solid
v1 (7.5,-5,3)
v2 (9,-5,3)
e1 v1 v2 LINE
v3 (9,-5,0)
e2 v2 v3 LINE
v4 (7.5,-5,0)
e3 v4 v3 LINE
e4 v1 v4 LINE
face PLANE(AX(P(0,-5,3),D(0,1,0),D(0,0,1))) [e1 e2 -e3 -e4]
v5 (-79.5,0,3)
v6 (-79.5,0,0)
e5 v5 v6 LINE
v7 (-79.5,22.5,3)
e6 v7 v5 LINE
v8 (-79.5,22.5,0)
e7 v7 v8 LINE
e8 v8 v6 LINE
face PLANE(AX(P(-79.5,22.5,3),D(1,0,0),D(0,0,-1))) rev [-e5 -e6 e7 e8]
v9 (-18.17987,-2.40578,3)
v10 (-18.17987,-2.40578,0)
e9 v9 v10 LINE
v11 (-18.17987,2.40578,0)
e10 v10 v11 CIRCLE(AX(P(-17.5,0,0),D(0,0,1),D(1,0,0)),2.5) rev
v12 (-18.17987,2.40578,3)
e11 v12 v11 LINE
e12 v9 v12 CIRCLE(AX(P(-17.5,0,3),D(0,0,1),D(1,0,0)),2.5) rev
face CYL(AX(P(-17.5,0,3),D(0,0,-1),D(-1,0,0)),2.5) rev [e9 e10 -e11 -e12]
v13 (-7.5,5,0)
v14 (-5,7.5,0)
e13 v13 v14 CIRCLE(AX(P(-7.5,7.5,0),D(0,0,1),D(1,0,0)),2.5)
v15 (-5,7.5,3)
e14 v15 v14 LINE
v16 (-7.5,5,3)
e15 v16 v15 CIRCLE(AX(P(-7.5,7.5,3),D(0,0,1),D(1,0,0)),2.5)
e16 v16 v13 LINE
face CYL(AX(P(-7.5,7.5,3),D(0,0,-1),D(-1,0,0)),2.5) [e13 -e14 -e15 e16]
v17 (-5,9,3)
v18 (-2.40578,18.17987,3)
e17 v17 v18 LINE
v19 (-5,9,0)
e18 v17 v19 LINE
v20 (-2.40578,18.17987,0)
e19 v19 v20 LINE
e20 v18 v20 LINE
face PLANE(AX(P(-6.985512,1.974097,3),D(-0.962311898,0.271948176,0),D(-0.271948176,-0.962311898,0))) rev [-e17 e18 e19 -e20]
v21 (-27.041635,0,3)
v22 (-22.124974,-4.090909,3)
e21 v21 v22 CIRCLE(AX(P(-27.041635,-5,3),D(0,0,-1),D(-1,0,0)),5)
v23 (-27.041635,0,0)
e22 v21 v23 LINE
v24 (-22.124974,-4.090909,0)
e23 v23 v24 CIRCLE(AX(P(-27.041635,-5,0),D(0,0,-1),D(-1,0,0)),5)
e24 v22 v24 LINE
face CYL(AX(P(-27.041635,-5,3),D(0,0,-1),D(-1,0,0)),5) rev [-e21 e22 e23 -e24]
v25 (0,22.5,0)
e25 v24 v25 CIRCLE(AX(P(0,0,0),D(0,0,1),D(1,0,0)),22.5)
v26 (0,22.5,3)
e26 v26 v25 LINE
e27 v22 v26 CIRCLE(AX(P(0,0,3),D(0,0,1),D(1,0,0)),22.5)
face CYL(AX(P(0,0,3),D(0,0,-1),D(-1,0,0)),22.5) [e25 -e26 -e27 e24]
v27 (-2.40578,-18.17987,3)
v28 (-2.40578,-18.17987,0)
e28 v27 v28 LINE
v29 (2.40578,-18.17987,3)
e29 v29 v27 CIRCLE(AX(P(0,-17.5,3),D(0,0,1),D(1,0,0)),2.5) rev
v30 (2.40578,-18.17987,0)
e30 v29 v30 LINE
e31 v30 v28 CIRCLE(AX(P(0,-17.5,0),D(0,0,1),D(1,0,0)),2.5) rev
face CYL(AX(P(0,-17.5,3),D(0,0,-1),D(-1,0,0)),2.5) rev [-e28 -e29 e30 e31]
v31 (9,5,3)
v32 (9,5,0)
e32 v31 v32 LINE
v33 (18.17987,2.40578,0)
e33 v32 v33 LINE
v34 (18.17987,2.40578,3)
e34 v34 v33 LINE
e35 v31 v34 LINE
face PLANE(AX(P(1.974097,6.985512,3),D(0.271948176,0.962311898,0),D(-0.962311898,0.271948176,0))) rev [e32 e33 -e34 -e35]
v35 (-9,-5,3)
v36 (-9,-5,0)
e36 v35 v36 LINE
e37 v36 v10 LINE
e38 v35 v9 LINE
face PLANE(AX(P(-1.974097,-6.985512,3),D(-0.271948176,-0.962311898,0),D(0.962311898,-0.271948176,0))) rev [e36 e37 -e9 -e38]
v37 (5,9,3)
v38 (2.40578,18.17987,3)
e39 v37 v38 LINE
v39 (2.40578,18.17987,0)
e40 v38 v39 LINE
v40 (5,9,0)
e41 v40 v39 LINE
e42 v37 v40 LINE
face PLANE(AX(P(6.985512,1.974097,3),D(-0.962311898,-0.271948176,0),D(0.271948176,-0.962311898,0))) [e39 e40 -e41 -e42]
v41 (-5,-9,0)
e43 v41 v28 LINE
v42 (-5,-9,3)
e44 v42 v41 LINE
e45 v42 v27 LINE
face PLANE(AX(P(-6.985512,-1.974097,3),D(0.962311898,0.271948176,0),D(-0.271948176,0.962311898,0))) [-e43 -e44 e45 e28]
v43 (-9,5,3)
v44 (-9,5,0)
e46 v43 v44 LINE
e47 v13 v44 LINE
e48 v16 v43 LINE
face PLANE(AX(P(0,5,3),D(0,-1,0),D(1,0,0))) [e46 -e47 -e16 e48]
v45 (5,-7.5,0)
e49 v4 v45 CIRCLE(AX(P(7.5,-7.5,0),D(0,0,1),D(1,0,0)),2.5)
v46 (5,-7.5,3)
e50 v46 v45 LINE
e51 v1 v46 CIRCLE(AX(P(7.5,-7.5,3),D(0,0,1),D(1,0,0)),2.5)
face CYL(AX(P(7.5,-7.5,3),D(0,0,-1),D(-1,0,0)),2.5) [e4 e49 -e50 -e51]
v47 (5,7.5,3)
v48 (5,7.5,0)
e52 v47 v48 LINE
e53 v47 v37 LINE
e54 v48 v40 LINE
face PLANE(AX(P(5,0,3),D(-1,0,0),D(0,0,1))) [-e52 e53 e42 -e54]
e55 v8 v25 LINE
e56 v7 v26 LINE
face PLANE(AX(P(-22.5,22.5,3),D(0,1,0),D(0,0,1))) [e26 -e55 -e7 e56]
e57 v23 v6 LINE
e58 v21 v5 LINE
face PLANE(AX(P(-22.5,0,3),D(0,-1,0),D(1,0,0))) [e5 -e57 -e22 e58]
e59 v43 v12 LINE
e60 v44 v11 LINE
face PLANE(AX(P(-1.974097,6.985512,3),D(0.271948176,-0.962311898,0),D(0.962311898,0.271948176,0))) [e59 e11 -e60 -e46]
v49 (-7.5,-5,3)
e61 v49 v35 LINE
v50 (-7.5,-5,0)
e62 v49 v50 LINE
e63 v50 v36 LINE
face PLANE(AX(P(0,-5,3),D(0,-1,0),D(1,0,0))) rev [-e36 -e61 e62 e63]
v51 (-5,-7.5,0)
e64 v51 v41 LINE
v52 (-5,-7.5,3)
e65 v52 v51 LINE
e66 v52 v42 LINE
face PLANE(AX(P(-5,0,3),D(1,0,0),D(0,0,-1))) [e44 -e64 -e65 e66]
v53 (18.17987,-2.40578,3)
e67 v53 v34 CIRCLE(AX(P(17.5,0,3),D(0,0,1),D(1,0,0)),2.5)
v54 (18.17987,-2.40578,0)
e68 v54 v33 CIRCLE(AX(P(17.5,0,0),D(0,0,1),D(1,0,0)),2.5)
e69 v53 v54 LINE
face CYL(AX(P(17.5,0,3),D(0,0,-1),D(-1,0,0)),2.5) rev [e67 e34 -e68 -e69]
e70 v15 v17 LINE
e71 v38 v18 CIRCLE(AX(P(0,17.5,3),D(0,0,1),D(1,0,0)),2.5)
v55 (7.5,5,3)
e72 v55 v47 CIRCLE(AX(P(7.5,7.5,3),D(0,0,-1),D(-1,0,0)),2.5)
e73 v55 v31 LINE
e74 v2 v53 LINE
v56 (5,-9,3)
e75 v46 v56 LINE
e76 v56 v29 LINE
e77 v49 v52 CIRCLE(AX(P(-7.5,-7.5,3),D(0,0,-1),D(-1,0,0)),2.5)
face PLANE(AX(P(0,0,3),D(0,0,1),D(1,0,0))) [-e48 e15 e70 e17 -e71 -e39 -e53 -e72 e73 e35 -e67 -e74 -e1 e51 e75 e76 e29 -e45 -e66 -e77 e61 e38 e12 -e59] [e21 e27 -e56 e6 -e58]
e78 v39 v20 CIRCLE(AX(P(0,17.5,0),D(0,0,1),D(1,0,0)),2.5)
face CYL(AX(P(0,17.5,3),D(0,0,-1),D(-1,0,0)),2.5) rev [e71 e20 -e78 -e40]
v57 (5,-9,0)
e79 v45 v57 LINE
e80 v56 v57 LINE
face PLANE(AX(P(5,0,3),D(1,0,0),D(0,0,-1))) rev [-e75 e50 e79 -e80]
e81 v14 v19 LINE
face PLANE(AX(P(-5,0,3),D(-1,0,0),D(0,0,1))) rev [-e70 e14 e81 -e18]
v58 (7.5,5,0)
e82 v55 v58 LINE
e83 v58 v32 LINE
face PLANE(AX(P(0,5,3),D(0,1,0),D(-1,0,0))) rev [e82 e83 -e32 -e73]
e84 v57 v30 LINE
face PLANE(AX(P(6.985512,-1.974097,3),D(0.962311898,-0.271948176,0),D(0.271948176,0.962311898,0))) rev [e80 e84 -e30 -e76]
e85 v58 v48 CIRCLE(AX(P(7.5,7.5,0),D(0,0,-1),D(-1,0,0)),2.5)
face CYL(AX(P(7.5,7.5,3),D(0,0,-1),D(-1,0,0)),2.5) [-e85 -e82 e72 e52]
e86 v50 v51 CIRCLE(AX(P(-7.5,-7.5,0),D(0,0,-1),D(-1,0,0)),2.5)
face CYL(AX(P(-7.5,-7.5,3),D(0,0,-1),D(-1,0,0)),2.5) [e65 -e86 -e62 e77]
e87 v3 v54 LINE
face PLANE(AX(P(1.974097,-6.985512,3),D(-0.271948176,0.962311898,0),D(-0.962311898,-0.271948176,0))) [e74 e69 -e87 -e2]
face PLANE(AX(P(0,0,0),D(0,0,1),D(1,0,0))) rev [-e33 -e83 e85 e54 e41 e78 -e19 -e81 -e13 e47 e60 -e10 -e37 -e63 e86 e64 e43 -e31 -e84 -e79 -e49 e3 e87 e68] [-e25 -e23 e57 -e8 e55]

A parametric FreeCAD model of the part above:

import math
import FreeCAD as App
import Part
import Sketcher

V = App.Vector
Q = App.Units.Quantity

doc = App.newDocument("Part")
body = doc.addObject("PartDesign::Body", "Body")

# Sketch on XY plane
sketch1 = body.newObject("Sketcher::SketchObject", "Sketch")
sketch1.AttachmentSupport = (doc.getObject("XY_Plane"), [""])
sketch1.MapMode = "FlatFace"
sketch1.addGeometry(Part.ArcOfCircle(Part.Circle(V(0, 0, 0), V(0, 0, 1), 22.5), math.radians(0), math.radians(90)), False)
sketch1.addGeometry(Part.LineSegment(V(0, 22.5, 0), V(-79.5, 22.5, 0)), False)
sketch1.addGeometry(Part.LineSegment(V(-79.5, 22.5, 0), V(-79.5, 0, 0)), False)
sketch1.addGeometry(Part.LineSegment(V(-79.5, 0, 0), V(-27, 0, 0)), False)
sketch1.addGeometry(Part.ArcOfCircle(Part.Circle(V(-27, -5, 0), V(0, 0, 1), 5), math.radians(10), math.radians(90)), False)
sketch1.addGeometry(Part.ArcOfCircle(Part.Circle(V(0, 0, 0), V(0, 0, 1), 22.5), math.radians(-170), math.radians(0)), False)
sketch1.addGeometry(Part.LineSegment(V(-9, 5, 0), V(-7.5, 5, 0)), False)
sketch1.addGeometry(Part.ArcOfCircle(Part.Circle(V(-7.5, 7.5, 0), V(0, 0, 1), 2.5), math.radians(-90), math.radians(0)), False)
sketch1.addGeometry(Part.LineSegment(V(-5, 7.5, 0), V(-5, 9, 0)), False)
sketch1.addGeometry(Part.LineSegment(V(-5, 9, 0), V(-2.4, 18.2, 0)), False)
sketch1.addGeometry(Part.ArcOfCircle(Part.Circle(V(0, 17.5, 0), V(0, 0, 1), 2.5), math.radians(16), math.radians(164)), False)
sketch1.addGeometry(Part.LineSegment(V(2.4, 18.2, 0), V(5, 9, 0)), False)
sketch1.addGeometry(Part.LineSegment(V(5, 9, 0), V(5, 7.5, 0)), False)
sketch1.addGeometry(Part.ArcOfCircle(Part.Circle(V(7.5, 7.5, 0), V(0, 0, 1), 2.5), math.radians(180), math.radians(270)), False)
sketch1.addGeometry(Part.LineSegment(V(7.5, 5, 0), V(9, 5, 0)), False)
sketch1.addGeometry(Part.LineSegment(V(9, 5, 0), V(18.2, 2.4, 0)), False)
sketch1.addGeometry(Part.ArcOfCircle(Part.Circle(V(17.5, 0, 0), V(0, 0, 1), 2.5), math.radians(0), math.radians(74)), False)
sketch1.addGeometry(Part.ArcOfCircle(Part.Circle(V(17.5, 0, 0), V(0, 0, 1), 2.5), math.radians(-74), math.radians(0)), False)
sketch1.addGeometry(Part.LineSegment(V(18.2, -2.4, 0), V(9, -5, 0)), False)
sketch1.addGeometry(Part.LineSegment(V(9, -5, 0), V(7.5, -5, 0)), False)
sketch1.addGeometry(Part.ArcOfCircle(Part.Circle(V(7.5, -7.5, 0), V(0, 0, 1), 2.5), math.radians(90), math.radians(180)), False)
sketch1.addGeometry(Part.LineSegment(V(5, -7.5, 0), V(5, -9, 0)), False)
sketch1.addGeometry(Part.LineSegment(V(5, -9, 0), V(2.4, -18.2, 0)), False)
sketch1.addGeometry(Part.ArcOfCircle(Part.Circle(V(0, -17.5, 0), V(0, 0, 1), 2.5), math.radians(-164), math.radians(-16)), False)
sketch1.addGeometry(Part.LineSegment(V(-2.4, -18.2, 0), V(-5, -9, 0)), False)
sketch1.addGeometry(Part.LineSegment(V(-5, -9, 0), V(-5, -7.5, 0)), False)
sketch1.addGeometry(Part.ArcOfCircle(Part.Circle(V(-7.5, -7.5, 0), V(0, 0, 1), 2.5), math.radians(0), math.radians(90)), False)
sketch1.addGeometry(Part.LineSegment(V(-7.5, -5, 0), V(-9, -5, 0)), False)
sketch1.addGeometry(Part.LineSegment(V(-9, -5, 0), V(-18.2, -2.4, 0)), False)
sketch1.addGeometry(Part.ArcOfCircle(Part.Circle(V(-17.5, 0, 0), V(0, 0, 1), 2.5), math.radians(106), math.radians(254)), False)
sketch1.addGeometry(Part.LineSegment(V(-18.2, 2.4, 0), V(-9, 5, 0)), False)
sketch1.addConstraint(Sketcher.Constraint("Tangent", 0, 2, 1, 1))
sketch1.addConstraint(Sketcher.Constraint("Coincident", 1, 2, 2, 1))
sketch1.addConstraint(Sketcher.Constraint("Coincident", 2, 2, 3, 1))
sketch1.addConstraint(Sketcher.Constraint("Tangent", 3, 2, 4, 2))
sketch1.addConstraint(Sketcher.Constraint("Tangent", 4, 1, 5, 1))
sketch1.addConstraint(Sketcher.Constraint("Tangent", 5, 2, 0, 1))
sketch1.addConstraint(Sketcher.Constraint("Tangent", 6, 2, 7, 1))
sketch1.addConstraint(Sketcher.Constraint("Tangent", 7, 2, 8, 1))
sketch1.addConstraint(Sketcher.Constraint("Coincident", 8, 2, 9, 1))
sketch1.addConstraint(Sketcher.Constraint("Tangent", 9, 2, 10, 2))
sketch1.addConstraint(Sketcher.Constraint("Tangent", 10, 1, 11, 1))
sketch1.addConstraint(Sketcher.Constraint("Coincident", 11, 2, 12, 1))
sketch1.addConstraint(Sketcher.Constraint("Tangent", 12, 2, 13, 1))
sketch1.addConstraint(Sketcher.Constraint("Tangent", 13, 2, 14, 1))
sketch1.addConstraint(Sketcher.Constraint("Coincident", 14, 2, 15, 1))
sketch1.addConstraint(Sketcher.Constraint("Tangent", 15, 2, 16, 2))
sketch1.addConstraint(Sketcher.Constraint("Tangent", 16, 1, 17, 2))
sketch1.addConstraint(Sketcher.Constraint("Tangent", 17, 1, 18, 1))
sketch1.addConstraint(Sketcher.Constraint("Coincident", 18, 2, 19, 1))
sketch1.addConstraint(Sketcher.Constraint("Tangent", 19, 2, 20, 1))
sketch1.addConstraint(Sketcher.Constraint("Tangent", 20, 2, 21, 1))
sketch1.addConstraint(Sketcher.Constraint("Coincident", 21, 2, 22, 1))
sketch1.addConstraint(Sketcher.Constraint("Tangent", 22, 2, 23, 2))
sketch1.addConstraint(Sketcher.Constraint("Tangent", 23, 1, 24, 1))
sketch1.addConstraint(Sketcher.Constraint("Coincident", 24, 2, 25, 1))
sketch1.addConstraint(Sketcher.Constraint("Tangent", 25, 2, 26, 1))
sketch1.addConstraint(Sketcher.Constraint("Tangent", 26, 2, 27, 1))
sketch1.addConstraint(Sketcher.Constraint("Coincident", 27, 2, 28, 1))
sketch1.addConstraint(Sketcher.Constraint("Tangent", 28, 2, 29, 2))
sketch1.addConstraint(Sketcher.Constraint("Tangent", 29, 1, 30, 1))
sketch1.addConstraint(Sketcher.Constraint("Coincident", 30, 2, 6, 1))
sketch1.addConstraint(Sketcher.Constraint("Horizontal", 1))
sketch1.addConstraint(Sketcher.Constraint("Vertical", 2))
sketch1.addConstraint(Sketcher.Constraint("Horizontal", 3))
sketch1.addConstraint(Sketcher.Constraint("Horizontal", 6))
sketch1.addConstraint(Sketcher.Constraint("Vertical", 8))
sketch1.addConstraint(Sketcher.Constraint("Vertical", 12))
sketch1.addConstraint(Sketcher.Constraint("Horizontal", 14))
sketch1.addConstraint(Sketcher.Constraint("Horizontal", 19))
sketch1.addConstraint(Sketcher.Constraint("Vertical", 21))
sketch1.addConstraint(Sketcher.Constraint("Vertical", 25))
sketch1.addConstraint(Sketcher.Constraint("Horizontal", 27))
sketch1.addConstraint(Sketcher.Constraint("Coincident", 0, 3, -1, 1))
sketch1.addConstraint(Sketcher.Constraint("Equal", 0, 5))
sketch1.addConstraint(Sketcher.Constraint("Equal", 7, 10))
sketch1.addConstraint(Sketcher.Constraint("Equal", 10, 13))
sketch1.addConstraint(Sketcher.Constraint("Equal", 13, 16))
sketch1.addConstraint(Sketcher.Constraint("Equal", 16, 17))
sketch1.addConstraint(Sketcher.Constraint("Equal", 17, 20))
sketch1.addConstraint(Sketcher.Constraint("Equal", 20, 23))
sketch1.addConstraint(Sketcher.Constraint("Equal", 23, 26))
sketch1.addConstraint(Sketcher.Constraint("Equal", 26, 29))
sketch1.addConstraint(Sketcher.Constraint("Symmetric", 7, 3, 20, 3, -1, 1))
sketch1.addConstraint(Sketcher.Constraint("Symmetric", 10, 3, 23, 3, -1, 1))
sketch1.addConstraint(Sketcher.Constraint("Symmetric", 13, 3, 26, 3, -1, 1))
sketch1.addConstraint(Sketcher.Constraint("Symmetric", 16, 3, 29, 3, -1, 1))
sketch1.addConstraint(Sketcher.Constraint("Symmetric", 7, 3, 13, 3, -2))
sketch1.addConstraint(Sketcher.Constraint("Symmetric", 9, 2, 10, 1, -2))
sketch1.addConstraint(Sketcher.Constraint("Symmetric", 17, 1, 28, 2, -2))
sketch1.addConstraint(Sketcher.Constraint("PointOnObject", 2, 2, -1))
sketch1.addConstraint(Sketcher.Constraint("PointOnObject", 5, 2, -1))
sketch1.addConstraint(Sketcher.Constraint("PointOnObject", 16, 1, -1))
sketch1.addConstraint(Sketcher.Constraint("Perpendicular", 9, 15))
sketch1.addConstraint(Sketcher.Constraint("Perpendicular", 11, 18))
sketch1.addConstraint(Sketcher.Constraint("Perpendicular", 15, 22))
sketch1.addConstraint(Sketcher.Constraint("Perpendicular", 18, 24))
sketch1.addConstraint(Sketcher.Constraint("Perpendicular", 24, 30))
sketch1.addConstraint(Sketcher.Constraint("Horizontal", 4, 3, 18, 2))
sketch1.addConstraint(Sketcher.Constraint("Equal", 27, 8))
sketch1.addConstraint(Sketcher.Constraint("Equal", 11, 15))
sketch1.addConstraint(Sketcher.Constraint("Radius", 4, Q("5 mm")))
sketch1.addConstraint(Sketcher.Constraint("Radius", 0, Q("22.5 mm")))
sketch1.addConstraint(Sketcher.Constraint("Radius", 7, Q("2.5 mm")))
sketch1.addConstraint(Sketcher.Constraint("DistanceX", 1, 2, 1, 1, Q("79.5 mm")))
sketch1.addConstraint(Sketcher.Constraint("DistanceX", 6, 1, 6, 2, Q("1.5 mm")))
sketch1.addConstraint(Sketcher.Constraint("DistanceX", -1, 1, 16, 1, Q("20 mm")))
pad1 = body.newObject("PartDesign::Pad", "Pad")
pad1.Profile = sketch1
pad1.Length = 3

doc.recompute()
